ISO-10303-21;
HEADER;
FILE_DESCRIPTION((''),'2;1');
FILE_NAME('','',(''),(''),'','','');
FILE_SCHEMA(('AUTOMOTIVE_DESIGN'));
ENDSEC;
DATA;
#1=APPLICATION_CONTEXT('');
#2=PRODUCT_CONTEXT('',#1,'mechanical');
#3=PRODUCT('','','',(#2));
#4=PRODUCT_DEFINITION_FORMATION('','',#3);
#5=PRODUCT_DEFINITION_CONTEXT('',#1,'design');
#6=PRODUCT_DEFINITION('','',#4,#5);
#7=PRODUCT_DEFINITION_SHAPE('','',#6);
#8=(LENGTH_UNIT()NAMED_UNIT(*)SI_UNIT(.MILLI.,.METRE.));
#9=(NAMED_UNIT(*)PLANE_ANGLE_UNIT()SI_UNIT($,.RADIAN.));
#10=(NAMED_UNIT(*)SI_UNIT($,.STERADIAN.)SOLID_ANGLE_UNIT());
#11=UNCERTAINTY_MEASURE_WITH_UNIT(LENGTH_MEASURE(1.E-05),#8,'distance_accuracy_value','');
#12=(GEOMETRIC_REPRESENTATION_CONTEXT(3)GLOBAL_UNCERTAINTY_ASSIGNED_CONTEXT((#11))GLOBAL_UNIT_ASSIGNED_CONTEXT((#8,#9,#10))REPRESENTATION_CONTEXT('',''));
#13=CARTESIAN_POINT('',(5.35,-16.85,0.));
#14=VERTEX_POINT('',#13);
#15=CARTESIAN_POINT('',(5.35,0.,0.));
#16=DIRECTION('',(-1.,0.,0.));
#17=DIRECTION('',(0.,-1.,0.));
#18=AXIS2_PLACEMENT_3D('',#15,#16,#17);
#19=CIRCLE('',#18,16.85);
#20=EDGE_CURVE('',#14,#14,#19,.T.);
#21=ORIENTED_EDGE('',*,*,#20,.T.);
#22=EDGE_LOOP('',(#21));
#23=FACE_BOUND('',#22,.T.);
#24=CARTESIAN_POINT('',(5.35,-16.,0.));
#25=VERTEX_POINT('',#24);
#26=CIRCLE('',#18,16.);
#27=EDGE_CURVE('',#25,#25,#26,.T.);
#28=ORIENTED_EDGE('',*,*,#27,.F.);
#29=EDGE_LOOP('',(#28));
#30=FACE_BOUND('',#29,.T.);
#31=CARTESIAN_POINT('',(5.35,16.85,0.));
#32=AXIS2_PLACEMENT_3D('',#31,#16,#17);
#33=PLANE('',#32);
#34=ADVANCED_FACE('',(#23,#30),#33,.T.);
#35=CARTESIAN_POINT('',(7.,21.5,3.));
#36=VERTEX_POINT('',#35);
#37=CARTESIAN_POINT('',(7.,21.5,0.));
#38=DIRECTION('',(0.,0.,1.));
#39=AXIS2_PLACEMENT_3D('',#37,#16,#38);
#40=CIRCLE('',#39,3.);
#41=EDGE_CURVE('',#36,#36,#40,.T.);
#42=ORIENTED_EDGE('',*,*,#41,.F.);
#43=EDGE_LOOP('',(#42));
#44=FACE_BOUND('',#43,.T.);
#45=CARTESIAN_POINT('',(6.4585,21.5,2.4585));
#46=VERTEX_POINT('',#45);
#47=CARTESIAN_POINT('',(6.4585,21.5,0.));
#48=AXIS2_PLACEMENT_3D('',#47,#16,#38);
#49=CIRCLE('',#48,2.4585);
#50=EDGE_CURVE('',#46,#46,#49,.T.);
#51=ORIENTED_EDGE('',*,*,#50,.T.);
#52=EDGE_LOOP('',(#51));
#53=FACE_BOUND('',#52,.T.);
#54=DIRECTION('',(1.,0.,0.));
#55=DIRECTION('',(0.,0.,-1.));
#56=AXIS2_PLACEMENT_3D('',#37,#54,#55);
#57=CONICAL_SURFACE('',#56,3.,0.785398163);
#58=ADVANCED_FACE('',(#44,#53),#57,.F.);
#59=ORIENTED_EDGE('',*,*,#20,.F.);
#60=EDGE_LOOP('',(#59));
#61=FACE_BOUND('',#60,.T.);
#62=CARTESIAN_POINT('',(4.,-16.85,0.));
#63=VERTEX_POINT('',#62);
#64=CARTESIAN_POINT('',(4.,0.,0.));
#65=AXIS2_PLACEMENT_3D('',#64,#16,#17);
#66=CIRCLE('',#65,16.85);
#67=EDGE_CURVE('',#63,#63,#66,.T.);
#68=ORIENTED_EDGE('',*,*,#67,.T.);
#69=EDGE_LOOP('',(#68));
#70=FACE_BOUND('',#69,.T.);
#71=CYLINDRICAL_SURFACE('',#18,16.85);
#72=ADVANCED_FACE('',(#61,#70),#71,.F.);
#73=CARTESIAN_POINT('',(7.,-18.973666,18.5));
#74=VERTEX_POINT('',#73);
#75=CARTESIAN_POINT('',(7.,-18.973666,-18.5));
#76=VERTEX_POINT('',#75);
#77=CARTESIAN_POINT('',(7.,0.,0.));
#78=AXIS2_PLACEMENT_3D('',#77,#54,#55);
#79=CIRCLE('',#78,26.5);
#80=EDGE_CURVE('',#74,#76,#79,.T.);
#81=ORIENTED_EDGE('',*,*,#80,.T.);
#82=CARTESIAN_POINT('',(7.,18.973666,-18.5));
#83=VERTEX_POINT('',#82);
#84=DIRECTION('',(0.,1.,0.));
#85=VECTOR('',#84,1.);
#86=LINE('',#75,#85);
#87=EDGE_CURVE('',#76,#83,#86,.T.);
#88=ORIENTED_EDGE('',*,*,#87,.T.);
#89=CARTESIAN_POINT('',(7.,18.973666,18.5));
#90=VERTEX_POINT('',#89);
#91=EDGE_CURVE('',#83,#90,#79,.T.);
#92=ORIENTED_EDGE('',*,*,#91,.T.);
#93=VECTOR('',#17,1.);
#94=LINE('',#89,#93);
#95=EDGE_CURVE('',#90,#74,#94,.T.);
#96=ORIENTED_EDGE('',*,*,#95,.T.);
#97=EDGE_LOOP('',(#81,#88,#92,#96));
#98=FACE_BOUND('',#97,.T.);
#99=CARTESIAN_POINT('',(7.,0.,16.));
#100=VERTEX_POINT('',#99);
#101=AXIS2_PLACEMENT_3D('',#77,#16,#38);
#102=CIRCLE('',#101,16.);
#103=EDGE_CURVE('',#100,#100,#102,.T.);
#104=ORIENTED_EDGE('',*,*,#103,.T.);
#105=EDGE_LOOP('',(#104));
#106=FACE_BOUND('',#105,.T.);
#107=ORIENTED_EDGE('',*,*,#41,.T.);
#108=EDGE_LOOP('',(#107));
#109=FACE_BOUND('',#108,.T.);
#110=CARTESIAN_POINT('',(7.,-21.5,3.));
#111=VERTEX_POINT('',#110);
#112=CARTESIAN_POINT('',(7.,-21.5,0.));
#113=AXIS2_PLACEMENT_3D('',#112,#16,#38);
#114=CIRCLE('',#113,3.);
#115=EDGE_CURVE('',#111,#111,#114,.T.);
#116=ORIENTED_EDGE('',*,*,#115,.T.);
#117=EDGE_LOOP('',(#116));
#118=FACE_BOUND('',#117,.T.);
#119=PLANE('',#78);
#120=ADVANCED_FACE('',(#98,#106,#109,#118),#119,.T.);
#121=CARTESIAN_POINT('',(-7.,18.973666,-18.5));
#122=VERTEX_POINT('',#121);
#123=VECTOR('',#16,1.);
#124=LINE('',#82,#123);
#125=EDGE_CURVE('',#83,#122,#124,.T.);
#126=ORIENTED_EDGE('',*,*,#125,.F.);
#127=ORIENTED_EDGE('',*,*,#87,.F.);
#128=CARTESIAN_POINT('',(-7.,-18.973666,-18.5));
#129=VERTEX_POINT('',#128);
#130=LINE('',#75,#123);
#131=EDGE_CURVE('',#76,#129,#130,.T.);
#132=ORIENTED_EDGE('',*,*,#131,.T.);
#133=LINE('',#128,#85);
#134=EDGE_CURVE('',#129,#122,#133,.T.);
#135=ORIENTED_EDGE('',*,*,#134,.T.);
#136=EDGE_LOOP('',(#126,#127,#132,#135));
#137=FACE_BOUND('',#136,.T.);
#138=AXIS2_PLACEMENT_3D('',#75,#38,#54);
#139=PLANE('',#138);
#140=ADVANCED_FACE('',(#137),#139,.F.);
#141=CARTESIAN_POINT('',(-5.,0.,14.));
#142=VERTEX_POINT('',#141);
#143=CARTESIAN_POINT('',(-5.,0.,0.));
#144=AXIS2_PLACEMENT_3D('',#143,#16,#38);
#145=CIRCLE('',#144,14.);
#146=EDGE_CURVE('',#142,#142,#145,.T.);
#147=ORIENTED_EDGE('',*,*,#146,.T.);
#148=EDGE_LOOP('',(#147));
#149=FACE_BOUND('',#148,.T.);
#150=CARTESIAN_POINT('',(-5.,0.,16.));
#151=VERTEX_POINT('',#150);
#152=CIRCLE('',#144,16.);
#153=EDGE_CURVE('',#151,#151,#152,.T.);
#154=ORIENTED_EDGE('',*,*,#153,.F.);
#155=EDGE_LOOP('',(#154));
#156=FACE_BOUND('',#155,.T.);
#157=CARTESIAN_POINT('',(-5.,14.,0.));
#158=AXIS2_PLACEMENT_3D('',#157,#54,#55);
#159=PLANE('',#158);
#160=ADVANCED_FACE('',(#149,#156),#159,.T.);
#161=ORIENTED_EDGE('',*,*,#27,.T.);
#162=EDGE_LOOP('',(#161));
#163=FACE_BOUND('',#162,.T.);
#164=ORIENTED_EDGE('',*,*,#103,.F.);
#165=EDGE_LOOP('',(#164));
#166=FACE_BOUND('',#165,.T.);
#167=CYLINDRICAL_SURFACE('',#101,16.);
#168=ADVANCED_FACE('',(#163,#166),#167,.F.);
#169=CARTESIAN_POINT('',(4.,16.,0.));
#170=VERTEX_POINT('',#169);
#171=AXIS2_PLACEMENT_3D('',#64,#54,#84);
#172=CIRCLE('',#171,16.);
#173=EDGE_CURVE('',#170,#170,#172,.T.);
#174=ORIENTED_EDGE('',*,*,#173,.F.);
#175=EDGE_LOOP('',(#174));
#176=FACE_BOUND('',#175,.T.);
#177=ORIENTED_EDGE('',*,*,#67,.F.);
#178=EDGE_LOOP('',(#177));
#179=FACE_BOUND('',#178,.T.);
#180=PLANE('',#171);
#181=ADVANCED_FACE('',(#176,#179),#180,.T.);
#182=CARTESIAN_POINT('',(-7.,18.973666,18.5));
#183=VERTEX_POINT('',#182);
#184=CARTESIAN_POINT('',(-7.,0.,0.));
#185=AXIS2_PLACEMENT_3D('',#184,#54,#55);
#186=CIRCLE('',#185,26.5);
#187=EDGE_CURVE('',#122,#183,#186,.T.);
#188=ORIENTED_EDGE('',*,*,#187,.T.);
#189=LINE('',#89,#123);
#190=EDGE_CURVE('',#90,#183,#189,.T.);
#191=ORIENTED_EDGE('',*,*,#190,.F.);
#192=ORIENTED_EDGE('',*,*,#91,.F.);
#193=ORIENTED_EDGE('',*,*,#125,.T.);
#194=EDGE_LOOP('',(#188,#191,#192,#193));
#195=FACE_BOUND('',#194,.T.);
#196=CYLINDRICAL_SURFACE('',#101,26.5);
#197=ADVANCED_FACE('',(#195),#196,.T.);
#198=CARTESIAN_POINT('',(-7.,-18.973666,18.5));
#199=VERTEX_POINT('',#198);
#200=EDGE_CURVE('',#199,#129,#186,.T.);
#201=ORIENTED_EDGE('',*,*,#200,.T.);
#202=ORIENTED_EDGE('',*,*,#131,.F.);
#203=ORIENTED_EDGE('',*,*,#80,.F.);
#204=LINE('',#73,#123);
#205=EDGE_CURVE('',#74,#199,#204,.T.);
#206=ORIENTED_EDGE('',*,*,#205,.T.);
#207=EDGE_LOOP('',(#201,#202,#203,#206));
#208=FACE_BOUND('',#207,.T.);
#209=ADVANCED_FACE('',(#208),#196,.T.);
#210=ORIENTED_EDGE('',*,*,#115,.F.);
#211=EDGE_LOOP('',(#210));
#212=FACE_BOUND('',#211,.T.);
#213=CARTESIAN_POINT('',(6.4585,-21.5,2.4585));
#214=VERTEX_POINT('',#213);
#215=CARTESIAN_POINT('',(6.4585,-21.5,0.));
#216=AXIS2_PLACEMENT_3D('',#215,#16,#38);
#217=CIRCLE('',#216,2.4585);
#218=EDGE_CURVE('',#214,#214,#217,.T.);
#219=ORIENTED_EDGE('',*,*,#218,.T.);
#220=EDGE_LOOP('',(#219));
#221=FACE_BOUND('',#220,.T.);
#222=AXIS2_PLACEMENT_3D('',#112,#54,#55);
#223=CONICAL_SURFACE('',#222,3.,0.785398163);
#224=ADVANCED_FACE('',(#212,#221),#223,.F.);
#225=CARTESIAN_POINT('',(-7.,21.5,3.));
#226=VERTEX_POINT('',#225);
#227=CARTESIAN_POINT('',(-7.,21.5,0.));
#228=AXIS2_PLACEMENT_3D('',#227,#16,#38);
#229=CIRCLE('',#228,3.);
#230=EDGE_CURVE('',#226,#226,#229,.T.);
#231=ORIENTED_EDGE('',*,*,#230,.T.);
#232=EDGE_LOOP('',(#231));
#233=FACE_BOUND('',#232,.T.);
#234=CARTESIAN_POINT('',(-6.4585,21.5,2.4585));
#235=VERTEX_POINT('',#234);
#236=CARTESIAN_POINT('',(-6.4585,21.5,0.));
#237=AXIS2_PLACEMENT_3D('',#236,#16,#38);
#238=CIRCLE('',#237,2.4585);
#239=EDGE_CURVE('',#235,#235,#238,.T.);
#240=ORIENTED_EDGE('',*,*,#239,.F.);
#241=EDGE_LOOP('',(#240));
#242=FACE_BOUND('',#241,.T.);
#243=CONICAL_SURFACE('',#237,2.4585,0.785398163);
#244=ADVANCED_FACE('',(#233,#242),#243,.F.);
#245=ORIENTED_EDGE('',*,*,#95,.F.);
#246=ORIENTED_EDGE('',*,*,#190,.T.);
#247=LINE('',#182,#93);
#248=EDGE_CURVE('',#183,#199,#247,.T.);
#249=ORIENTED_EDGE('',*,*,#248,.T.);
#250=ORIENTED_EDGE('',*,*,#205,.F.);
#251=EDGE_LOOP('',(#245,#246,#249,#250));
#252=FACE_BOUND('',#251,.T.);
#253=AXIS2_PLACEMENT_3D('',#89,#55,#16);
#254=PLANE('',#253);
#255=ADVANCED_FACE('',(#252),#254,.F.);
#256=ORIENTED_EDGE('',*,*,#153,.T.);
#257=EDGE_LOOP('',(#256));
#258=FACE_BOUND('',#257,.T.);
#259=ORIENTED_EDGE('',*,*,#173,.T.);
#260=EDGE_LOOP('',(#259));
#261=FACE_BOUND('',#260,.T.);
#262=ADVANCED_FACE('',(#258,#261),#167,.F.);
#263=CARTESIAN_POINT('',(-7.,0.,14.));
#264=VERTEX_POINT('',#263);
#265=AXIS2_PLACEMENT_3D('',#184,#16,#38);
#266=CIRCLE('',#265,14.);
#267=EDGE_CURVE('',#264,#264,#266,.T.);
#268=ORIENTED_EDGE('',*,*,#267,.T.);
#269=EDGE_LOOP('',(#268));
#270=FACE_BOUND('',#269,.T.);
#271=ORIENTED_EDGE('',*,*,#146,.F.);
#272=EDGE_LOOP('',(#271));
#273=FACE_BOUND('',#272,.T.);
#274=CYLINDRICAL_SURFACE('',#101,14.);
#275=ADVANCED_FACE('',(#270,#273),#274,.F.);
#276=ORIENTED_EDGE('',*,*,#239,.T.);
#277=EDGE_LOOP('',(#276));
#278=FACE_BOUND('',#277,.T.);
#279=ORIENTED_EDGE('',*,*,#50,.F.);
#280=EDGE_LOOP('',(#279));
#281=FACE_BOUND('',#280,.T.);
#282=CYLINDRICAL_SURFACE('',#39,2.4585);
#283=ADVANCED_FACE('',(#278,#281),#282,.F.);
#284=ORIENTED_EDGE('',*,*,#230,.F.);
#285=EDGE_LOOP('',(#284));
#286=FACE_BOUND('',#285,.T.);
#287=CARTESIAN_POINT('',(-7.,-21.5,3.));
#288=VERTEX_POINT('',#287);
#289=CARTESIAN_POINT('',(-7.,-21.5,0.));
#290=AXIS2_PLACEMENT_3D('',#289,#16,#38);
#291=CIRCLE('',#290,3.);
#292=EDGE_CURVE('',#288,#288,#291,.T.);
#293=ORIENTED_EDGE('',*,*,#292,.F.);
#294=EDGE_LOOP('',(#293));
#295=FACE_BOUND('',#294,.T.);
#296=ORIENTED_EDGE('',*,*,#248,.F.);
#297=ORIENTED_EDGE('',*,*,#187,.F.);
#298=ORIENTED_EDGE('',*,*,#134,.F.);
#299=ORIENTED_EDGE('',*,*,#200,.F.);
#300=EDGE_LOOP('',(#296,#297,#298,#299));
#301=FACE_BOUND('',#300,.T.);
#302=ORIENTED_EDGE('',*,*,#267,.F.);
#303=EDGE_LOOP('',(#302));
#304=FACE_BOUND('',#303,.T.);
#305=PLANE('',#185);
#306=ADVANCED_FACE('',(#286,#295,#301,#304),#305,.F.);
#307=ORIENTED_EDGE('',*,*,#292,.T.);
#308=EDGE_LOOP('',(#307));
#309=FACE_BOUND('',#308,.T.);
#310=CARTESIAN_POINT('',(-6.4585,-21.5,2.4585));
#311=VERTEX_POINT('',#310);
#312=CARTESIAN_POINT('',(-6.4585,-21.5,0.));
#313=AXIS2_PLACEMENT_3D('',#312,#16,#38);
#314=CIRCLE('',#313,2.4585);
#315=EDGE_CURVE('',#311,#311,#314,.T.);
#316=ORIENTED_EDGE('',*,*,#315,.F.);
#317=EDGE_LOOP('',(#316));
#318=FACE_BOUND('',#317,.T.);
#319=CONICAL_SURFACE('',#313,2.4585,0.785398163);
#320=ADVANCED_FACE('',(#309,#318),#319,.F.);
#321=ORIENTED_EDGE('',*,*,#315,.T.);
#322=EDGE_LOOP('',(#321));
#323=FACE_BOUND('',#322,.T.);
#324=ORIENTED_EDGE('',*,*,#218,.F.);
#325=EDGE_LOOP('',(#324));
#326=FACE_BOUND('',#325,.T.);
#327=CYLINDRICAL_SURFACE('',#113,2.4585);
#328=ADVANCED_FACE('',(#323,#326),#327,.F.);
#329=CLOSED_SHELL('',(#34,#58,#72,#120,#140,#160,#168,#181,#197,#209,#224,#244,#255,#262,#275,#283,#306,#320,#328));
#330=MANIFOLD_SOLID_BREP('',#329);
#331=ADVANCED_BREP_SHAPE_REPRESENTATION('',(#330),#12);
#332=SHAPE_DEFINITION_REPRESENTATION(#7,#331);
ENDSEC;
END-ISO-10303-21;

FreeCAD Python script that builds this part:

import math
import FreeCAD as App
import Part
import Sketcher
Q = App.Units.Quantity

doc = App.newDocument("Part")
body = doc.addObject("PartDesign::Body", "Body")

sketch1 = body.newObject("Sketcher::SketchObject", "Sketch")
sketch1.AttachmentSupport = (doc.getObject("YZ_Plane"), [""])
sketch1.MapMode = "FlatFace"
sketch1.addGeometry(Part.LineSegment(App.Vector(19, 18, 0), App.Vector(-19, 18, 0)), False)
sketch1.addGeometry(Part.ArcOfCircle(Part.Circle(App.Vector(0, 0, 0), App.Vector(0, 0, 1), 26), math.radians(136), math.radians(224)), False)
sketch1.addGeometry(Part.LineSegment(App.Vector(-19, -18, 0), App.Vector(19, -18, 0)), False)
sketch1.addGeometry(Part.ArcOfCircle(Part.Circle(App.Vector(0, 0, 0), App.Vector(0, 0, 1), 26), math.radians(-44), math.radians(44)), False)
sketch1.addConstraint(Sketcher.Constraint("Coincident", 0, 2, 1, 1))
sketch1.addConstraint(Sketcher.Constraint("Coincident", 1, 2, 2, 1))
sketch1.addConstraint(Sketcher.Constraint("Coincident", 2, 2, 3, 1))
sketch1.addConstraint(Sketcher.Constraint("Coincident", 3, 2, 0, 1))
sketch1.addConstraint(Sketcher.Constraint("Horizontal", 0))
sketch1.addConstraint(Sketcher.Constraint("Horizontal", 2))
sketch1.addConstraint(Sketcher.Constraint("Coincident", 1, 3, -1, 1))
sketch1.addConstraint(Sketcher.Constraint("Coincident", 3, 3, -1, 1))
sketch1.addConstraint(Sketcher.Constraint("Equal", 1, 3))
sketch1.addConstraint(Sketcher.Constraint("Vertical", 0, 2, 1, 2))
sketch1.addConstraint(Sketcher.Constraint("Radius", 1, Q("26.5 mm")))
sketch1.addConstraint(Sketcher.Constraint("DistanceY", 1, 2, 0, 2, Q("37 mm")))
pad1 = body.newObject("PartDesign::Pad", "Pad")
pad1.Profile = sketch1
pad1.Type = "TwoLengths"
pad1.Length = 7
pad1.Length2 = 7

sketch2 = body.newObject("Sketcher::SketchObject", "Sketch001")
sketch2.AttachmentSupport = (doc.getObject("XY_Plane"), [""])
sketch2.MapMode = "FlatFace"
sketch2.addGeometry(Part.LineSegment(App.Vector(-7, 14, 0), App.Vector(-7, 0, 0)), False)
sketch2.addGeometry(Part.LineSegment(App.Vector(-7, 0, 0), App.Vector(7, 0, 0)), False)
sketch2.addGeometry(Part.LineSegment(App.Vector(7, 0, 0), App.Vector(7, 16, 0)), False)
sketch2.addGeometry(Part.LineSegment(App.Vector(7, 16, 0), App.Vector(-5, 16, 0)), False)
sketch2.addGeometry(Part.LineSegment(App.Vector(-5, 16, 0), App.Vector(-5, 14, 0)), False)
sketch2.addGeometry(Part.LineSegment(App.Vector(-5, 14, 0), App.Vector(-7, 14, 0)), False)
sketch2.addConstraint(Sketcher.Constraint("Coincident", 0, 2, 1, 1))
sketch2.addConstraint(Sketcher.Constraint("Coincident", 1, 2, 2, 1))
sketch2.addConstraint(Sketcher.Constraint("Coincident", 2, 2, 3, 1))
sketch2.addConstraint(Sketcher.Constraint("Coincident", 3, 2, 4, 1))
sketch2.addConstraint(Sketcher.Constraint("Coincident", 4, 2, 5, 1))
sketch2.addConstraint(Sketcher.Constraint("Coincident", 5, 2, 0, 1))
sketch2.addConstraint(Sketcher.Constraint("Vertical", 0))
sketch2.addConstraint(Sketcher.Constraint("Horizontal", 1))
sketch2.addConstraint(Sketcher.Constraint("Vertical", 2))
sketch2.addConstraint(Sketcher.Constraint("Horizontal", 3))
sketch2.addConstraint(Sketcher.Constraint("Vertical", 4))
sketch2.addConstraint(Sketcher.Constraint("Horizontal", 5))
sketch2.addConstraint(Sketcher.Constraint("Symmetric", 0, 2, 1, 2, -1, 1))
sketch2.addConstraint(Sketcher.Constraint("Equal", 1, 0))
sketch2.addConstraint(Sketcher.Constraint("Equal", 5, 4))
sketch2.addConstraint(Sketcher.Constraint("DistanceX", 1, 1, 1, 2, Q("14 mm")))
sketch2.addConstraint(Sketcher.Constraint("DistanceX", 3, 2, 3, 1, Q("12 mm")))
groove = body.newObject("PartDesign::Groove", "Groove")
groove.Profile = sketch2
groove.ReferenceAxis = (sketch2, ["H_Axis"])
groove.Angle = 360

sketch3 = body.newObject("Sketcher::SketchObject", "Sketch002")
sketch3.AttachmentSupport = (doc.getObject("XY_Plane"), [""])
sketch3.MapMode = "FlatFace"
sketch3.addGeometry(Part.LineSegment(App.Vector(4, 16.9, 0), App.Vector(4, 0, 0)), False)
sketch3.addGeometry(Part.LineSegment(App.Vector(4, 0, 0), App.Vector(5.3, 0, 0)), False)
sketch3.addGeometry(Part.LineSegment(App.Vector(5.3, 0, 0), App.Vector(5.3, 16.9, 0)), False)
sketch3.addGeometry(Part.LineSegment(App.Vector(5.3, 16.9, 0), App.Vector(4, 16.9, 0)), False)
sketch3.addConstraint(Sketcher.Constraint("Coincident", 0, 2, 1, 1))
sketch3.addConstraint(Sketcher.Constraint("Coincident", 1, 2, 2, 1))
sketch3.addConstraint(Sketcher.Constraint("Coincident", 2, 2, 3, 1))
sketch3.addConstraint(Sketcher.Constraint("Coincident", 3, 2, 0, 1))
sketch3.addConstraint(Sketcher.Constraint("Vertical", 0))
sketch3.addConstraint(Sketcher.Constraint("Horizontal", 1))
sketch3.addConstraint(Sketcher.Constraint("Vertical", 2))
sketch3.addConstraint(Sketcher.Constraint("Horizontal", 3))
sketch3.addConstraint(Sketcher.Constraint("PointOnObject", 0, 2, -1))
sketch3.addConstraint(Sketcher.Constraint("DistanceX", -1, 1, 0, 2, Q("4 mm")))
sketch3.addConstraint(Sketcher.Constraint("DistanceX", 1, 1, 1, 2, Q("1.35 mm")))
sketch3.addConstraint(Sketcher.Constraint("DistanceY", 0, 2, 0, 1, Q("16.85 mm")))
groove2 = body.newObject("PartDesign::Groove", "Groove001")
groove2.Profile = sketch3
groove2.ReferenceAxis = (sketch3, ["H_Axis"])
groove2.Angle = 360

sketch4 = body.newObject("Sketcher::SketchObject", "Sketch003")
sketch4.AttachmentSupport = (doc.getObject("XY_Plane"), [""])
sketch4.MapMode = "FlatFace"
sketch4.addGeometry(Part.LineSegment(App.Vector(-7, -18.5, 0), App.Vector(-7, -21.5, 0)), False)
sketch4.addGeometry(Part.LineSegment(App.Vector(-7, -21.5, 0), App.Vector(7, -21.5, 0)), False)
sketch4.addGeometry(Part.LineSegment(App.Vector(7, -21.5, 0), App.Vector(7, -18.5, 0)), False)
sketch4.addGeometry(Part.LineSegment(App.Vector(7, -18.5, 0), App.Vector(6.5, -19, 0)), False)
sketch4.addGeometry(Part.LineSegment(App.Vector(6.5, -19, 0), App.Vector(-6.5, -19, 0)), False)
sketch4.addGeometry(Part.LineSegment(App.Vector(-6.5, -19, 0), App.Vector(-7, -18.5, 0)), False)
sketch4.addGeometry(Part.LineSegment(App.Vector(7, -21.5, 0), App.Vector(-7, -21.5, 0)), True)
sketch4.addConstraint(Sketcher.Constraint("Coincident", 0, 2, 1, 1))
sketch4.addConstraint(Sketcher.Constraint("Coincident", 1, 2, 2, 1))
sketch4.addConstraint(Sketcher.Constraint("Coincident", 2, 2, 3, 1))
sketch4.addConstraint(Sketcher.Constraint("Coincident", 3, 2, 4, 1))
sketch4.addConstraint(Sketcher.Constraint("Coincident", 4, 2, 5, 1))
sketch4.addConstraint(Sketcher.Constraint("Coincident", 5, 2, 0, 1))
sketch4.addConstraint(Sketcher.Constraint("Vertical", 0))
sketch4.addConstraint(Sketcher.Constraint("Horizontal", 1))
sketch4.addConstraint(Sketcher.Constraint("Vertical", 2))
sketch4.addConstraint(Sketcher.Constraint("Horizontal", 4))
sketch4.addConstraint(Sketcher.Constraint("Horizontal", 6))
sketch4.addConstraint(Sketcher.Constraint("Coincident", 6, 1, 1, 2))
sketch4.addConstraint(Sketcher.Constraint("Symmetric", 2, 2, 5, 2, -2))
sketch4.addConstraint(Sketcher.Constraint("Perpendicular", 3, 5))
sketch4.addConstraint(Sketcher.Constraint("Vertical", 5, 2, 6, 2))
sketch4.addConstraint(Sketcher.Constraint("Equal", 3, 5))
sketch4.addConstraint(Sketcher.Constraint("DistanceX", 1, 1, 1, 2, Q("14 mm")))
sketch4.addConstraint(Sketcher.Constraint("DistanceY", 0, 2, 0, 1, Q("3 mm")))
sketch4.addConstraint(Sketcher.Constraint("DistanceY", 0, 2, -1, 1, Q("21.5 mm")))
sketch4.addConstraint(Sketcher.Constraint("DistanceX", 4, 2, 4, 1, Q("12.917 mm")))
groove3 = body.newObject("PartDesign::Groove", "Groove002")
groove3.Profile = sketch4
groove3.ReferenceAxis = (sketch4, ["Axis0"])
groove3.Angle = 360

sketch5 = body.newObject("Sketcher::SketchObject", "Sketch004")
sketch5.AttachmentSupport = (doc.getObject("XY_Plane"), [""])
sketch5.MapMode = "FlatFace"
sketch5.addGeometry(Part.LineSegment(App.Vector(-7, 24.5, 0), App.Vector(-7, 21.5, 0)), False)
sketch5.addGeometry(Part.LineSegment(App.Vector(-7, 21.5, 0), App.Vector(7, 21.5, 0)), False)
sketch5.addGeometry(Part.LineSegment(App.Vector(7, 21.5, 0), App.Vector(7, 24.5, 0)), False)
sketch5.addGeometry(Part.LineSegment(App.Vector(7, 24.5, 0), App.Vector(6.5, 24, 0)), False)
sketch5.addGeometry(Part.LineSegment(App.Vector(6.5, 24, 0), App.Vector(-6.5, 24, 0)), False)
sketch5.addGeometry(Part.LineSegment(App.Vector(-6.5, 24, 0), App.Vector(-7, 24.5, 0)), False)
sketch5.addGeometry(Part.LineSegment(App.Vector(7, 21.5, 0), App.Vector(-7, 21.5, 0)), True)
sketch5.addConstraint(Sketcher.Constraint("Coincident", 0, 2, 1, 1))
sketch5.addConstraint(Sketcher.Constraint("Coincident", 1, 2, 2, 1))
sketch5.addConstraint(Sketcher.Constraint("Coincident", 2, 2, 3, 1))
sketch5.addConstraint(Sketcher.Constraint("Coincident", 3, 2, 4, 1))
sketch5.addConstraint(Sketcher.Constraint("Coincident", 4, 2, 5, 1))
sketch5.addConstraint(Sketcher.Constraint("Coincident", 5, 2, 0, 1))
sketch5.addConstraint(Sketcher.Constraint("Vertical", 0))
sketch5.addConstraint(Sketcher.Constraint("Horizontal", 1))
sketch5.addConstraint(Sketcher.Constraint("Vertical", 2))
sketch5.addConstraint(Sketcher.Constraint("Horizontal", 4))
sketch5.addConstraint(Sketcher.Constraint("Horizontal", 6))
sketch5.addConstraint(Sketcher.Constraint("Coincident", 6, 1, 1, 2))
sketch5.addConstraint(Sketcher.Constraint("Symmetric", 2, 2, 5, 2, -2))
sketch5.addConstraint(Sketcher.Constraint("Perpendicular", 3, 5))
sketch5.addConstraint(Sketcher.Constraint("Vertical", 5, 2, 6, 2))
sketch5.addConstraint(Sketcher.Constraint("Equal", 3, 5))
sketch5.addConstraint(Sketcher.Constraint("DistanceX", 1, 1, 1, 2, Q("14 mm")))
sketch5.addConstraint(Sketcher.Constraint("DistanceY", 0, 2, 0, 1, Q("3 mm")))
sketch5.addConstraint(Sketcher.Constraint("DistanceY", -1, 1, 0, 2, Q("21.5 mm")))
sketch5.addConstraint(Sketcher.Constraint("DistanceX", 4, 2, 4, 1, Q("12.917 mm")))
groove4 = body.newObject("PartDesign::Groove", "Groove003")
groove4.Profile = sketch5
groove4.ReferenceAxis = (sketch5, ["Axis0"])
groove4.Angle = 360

doc.recompute()
